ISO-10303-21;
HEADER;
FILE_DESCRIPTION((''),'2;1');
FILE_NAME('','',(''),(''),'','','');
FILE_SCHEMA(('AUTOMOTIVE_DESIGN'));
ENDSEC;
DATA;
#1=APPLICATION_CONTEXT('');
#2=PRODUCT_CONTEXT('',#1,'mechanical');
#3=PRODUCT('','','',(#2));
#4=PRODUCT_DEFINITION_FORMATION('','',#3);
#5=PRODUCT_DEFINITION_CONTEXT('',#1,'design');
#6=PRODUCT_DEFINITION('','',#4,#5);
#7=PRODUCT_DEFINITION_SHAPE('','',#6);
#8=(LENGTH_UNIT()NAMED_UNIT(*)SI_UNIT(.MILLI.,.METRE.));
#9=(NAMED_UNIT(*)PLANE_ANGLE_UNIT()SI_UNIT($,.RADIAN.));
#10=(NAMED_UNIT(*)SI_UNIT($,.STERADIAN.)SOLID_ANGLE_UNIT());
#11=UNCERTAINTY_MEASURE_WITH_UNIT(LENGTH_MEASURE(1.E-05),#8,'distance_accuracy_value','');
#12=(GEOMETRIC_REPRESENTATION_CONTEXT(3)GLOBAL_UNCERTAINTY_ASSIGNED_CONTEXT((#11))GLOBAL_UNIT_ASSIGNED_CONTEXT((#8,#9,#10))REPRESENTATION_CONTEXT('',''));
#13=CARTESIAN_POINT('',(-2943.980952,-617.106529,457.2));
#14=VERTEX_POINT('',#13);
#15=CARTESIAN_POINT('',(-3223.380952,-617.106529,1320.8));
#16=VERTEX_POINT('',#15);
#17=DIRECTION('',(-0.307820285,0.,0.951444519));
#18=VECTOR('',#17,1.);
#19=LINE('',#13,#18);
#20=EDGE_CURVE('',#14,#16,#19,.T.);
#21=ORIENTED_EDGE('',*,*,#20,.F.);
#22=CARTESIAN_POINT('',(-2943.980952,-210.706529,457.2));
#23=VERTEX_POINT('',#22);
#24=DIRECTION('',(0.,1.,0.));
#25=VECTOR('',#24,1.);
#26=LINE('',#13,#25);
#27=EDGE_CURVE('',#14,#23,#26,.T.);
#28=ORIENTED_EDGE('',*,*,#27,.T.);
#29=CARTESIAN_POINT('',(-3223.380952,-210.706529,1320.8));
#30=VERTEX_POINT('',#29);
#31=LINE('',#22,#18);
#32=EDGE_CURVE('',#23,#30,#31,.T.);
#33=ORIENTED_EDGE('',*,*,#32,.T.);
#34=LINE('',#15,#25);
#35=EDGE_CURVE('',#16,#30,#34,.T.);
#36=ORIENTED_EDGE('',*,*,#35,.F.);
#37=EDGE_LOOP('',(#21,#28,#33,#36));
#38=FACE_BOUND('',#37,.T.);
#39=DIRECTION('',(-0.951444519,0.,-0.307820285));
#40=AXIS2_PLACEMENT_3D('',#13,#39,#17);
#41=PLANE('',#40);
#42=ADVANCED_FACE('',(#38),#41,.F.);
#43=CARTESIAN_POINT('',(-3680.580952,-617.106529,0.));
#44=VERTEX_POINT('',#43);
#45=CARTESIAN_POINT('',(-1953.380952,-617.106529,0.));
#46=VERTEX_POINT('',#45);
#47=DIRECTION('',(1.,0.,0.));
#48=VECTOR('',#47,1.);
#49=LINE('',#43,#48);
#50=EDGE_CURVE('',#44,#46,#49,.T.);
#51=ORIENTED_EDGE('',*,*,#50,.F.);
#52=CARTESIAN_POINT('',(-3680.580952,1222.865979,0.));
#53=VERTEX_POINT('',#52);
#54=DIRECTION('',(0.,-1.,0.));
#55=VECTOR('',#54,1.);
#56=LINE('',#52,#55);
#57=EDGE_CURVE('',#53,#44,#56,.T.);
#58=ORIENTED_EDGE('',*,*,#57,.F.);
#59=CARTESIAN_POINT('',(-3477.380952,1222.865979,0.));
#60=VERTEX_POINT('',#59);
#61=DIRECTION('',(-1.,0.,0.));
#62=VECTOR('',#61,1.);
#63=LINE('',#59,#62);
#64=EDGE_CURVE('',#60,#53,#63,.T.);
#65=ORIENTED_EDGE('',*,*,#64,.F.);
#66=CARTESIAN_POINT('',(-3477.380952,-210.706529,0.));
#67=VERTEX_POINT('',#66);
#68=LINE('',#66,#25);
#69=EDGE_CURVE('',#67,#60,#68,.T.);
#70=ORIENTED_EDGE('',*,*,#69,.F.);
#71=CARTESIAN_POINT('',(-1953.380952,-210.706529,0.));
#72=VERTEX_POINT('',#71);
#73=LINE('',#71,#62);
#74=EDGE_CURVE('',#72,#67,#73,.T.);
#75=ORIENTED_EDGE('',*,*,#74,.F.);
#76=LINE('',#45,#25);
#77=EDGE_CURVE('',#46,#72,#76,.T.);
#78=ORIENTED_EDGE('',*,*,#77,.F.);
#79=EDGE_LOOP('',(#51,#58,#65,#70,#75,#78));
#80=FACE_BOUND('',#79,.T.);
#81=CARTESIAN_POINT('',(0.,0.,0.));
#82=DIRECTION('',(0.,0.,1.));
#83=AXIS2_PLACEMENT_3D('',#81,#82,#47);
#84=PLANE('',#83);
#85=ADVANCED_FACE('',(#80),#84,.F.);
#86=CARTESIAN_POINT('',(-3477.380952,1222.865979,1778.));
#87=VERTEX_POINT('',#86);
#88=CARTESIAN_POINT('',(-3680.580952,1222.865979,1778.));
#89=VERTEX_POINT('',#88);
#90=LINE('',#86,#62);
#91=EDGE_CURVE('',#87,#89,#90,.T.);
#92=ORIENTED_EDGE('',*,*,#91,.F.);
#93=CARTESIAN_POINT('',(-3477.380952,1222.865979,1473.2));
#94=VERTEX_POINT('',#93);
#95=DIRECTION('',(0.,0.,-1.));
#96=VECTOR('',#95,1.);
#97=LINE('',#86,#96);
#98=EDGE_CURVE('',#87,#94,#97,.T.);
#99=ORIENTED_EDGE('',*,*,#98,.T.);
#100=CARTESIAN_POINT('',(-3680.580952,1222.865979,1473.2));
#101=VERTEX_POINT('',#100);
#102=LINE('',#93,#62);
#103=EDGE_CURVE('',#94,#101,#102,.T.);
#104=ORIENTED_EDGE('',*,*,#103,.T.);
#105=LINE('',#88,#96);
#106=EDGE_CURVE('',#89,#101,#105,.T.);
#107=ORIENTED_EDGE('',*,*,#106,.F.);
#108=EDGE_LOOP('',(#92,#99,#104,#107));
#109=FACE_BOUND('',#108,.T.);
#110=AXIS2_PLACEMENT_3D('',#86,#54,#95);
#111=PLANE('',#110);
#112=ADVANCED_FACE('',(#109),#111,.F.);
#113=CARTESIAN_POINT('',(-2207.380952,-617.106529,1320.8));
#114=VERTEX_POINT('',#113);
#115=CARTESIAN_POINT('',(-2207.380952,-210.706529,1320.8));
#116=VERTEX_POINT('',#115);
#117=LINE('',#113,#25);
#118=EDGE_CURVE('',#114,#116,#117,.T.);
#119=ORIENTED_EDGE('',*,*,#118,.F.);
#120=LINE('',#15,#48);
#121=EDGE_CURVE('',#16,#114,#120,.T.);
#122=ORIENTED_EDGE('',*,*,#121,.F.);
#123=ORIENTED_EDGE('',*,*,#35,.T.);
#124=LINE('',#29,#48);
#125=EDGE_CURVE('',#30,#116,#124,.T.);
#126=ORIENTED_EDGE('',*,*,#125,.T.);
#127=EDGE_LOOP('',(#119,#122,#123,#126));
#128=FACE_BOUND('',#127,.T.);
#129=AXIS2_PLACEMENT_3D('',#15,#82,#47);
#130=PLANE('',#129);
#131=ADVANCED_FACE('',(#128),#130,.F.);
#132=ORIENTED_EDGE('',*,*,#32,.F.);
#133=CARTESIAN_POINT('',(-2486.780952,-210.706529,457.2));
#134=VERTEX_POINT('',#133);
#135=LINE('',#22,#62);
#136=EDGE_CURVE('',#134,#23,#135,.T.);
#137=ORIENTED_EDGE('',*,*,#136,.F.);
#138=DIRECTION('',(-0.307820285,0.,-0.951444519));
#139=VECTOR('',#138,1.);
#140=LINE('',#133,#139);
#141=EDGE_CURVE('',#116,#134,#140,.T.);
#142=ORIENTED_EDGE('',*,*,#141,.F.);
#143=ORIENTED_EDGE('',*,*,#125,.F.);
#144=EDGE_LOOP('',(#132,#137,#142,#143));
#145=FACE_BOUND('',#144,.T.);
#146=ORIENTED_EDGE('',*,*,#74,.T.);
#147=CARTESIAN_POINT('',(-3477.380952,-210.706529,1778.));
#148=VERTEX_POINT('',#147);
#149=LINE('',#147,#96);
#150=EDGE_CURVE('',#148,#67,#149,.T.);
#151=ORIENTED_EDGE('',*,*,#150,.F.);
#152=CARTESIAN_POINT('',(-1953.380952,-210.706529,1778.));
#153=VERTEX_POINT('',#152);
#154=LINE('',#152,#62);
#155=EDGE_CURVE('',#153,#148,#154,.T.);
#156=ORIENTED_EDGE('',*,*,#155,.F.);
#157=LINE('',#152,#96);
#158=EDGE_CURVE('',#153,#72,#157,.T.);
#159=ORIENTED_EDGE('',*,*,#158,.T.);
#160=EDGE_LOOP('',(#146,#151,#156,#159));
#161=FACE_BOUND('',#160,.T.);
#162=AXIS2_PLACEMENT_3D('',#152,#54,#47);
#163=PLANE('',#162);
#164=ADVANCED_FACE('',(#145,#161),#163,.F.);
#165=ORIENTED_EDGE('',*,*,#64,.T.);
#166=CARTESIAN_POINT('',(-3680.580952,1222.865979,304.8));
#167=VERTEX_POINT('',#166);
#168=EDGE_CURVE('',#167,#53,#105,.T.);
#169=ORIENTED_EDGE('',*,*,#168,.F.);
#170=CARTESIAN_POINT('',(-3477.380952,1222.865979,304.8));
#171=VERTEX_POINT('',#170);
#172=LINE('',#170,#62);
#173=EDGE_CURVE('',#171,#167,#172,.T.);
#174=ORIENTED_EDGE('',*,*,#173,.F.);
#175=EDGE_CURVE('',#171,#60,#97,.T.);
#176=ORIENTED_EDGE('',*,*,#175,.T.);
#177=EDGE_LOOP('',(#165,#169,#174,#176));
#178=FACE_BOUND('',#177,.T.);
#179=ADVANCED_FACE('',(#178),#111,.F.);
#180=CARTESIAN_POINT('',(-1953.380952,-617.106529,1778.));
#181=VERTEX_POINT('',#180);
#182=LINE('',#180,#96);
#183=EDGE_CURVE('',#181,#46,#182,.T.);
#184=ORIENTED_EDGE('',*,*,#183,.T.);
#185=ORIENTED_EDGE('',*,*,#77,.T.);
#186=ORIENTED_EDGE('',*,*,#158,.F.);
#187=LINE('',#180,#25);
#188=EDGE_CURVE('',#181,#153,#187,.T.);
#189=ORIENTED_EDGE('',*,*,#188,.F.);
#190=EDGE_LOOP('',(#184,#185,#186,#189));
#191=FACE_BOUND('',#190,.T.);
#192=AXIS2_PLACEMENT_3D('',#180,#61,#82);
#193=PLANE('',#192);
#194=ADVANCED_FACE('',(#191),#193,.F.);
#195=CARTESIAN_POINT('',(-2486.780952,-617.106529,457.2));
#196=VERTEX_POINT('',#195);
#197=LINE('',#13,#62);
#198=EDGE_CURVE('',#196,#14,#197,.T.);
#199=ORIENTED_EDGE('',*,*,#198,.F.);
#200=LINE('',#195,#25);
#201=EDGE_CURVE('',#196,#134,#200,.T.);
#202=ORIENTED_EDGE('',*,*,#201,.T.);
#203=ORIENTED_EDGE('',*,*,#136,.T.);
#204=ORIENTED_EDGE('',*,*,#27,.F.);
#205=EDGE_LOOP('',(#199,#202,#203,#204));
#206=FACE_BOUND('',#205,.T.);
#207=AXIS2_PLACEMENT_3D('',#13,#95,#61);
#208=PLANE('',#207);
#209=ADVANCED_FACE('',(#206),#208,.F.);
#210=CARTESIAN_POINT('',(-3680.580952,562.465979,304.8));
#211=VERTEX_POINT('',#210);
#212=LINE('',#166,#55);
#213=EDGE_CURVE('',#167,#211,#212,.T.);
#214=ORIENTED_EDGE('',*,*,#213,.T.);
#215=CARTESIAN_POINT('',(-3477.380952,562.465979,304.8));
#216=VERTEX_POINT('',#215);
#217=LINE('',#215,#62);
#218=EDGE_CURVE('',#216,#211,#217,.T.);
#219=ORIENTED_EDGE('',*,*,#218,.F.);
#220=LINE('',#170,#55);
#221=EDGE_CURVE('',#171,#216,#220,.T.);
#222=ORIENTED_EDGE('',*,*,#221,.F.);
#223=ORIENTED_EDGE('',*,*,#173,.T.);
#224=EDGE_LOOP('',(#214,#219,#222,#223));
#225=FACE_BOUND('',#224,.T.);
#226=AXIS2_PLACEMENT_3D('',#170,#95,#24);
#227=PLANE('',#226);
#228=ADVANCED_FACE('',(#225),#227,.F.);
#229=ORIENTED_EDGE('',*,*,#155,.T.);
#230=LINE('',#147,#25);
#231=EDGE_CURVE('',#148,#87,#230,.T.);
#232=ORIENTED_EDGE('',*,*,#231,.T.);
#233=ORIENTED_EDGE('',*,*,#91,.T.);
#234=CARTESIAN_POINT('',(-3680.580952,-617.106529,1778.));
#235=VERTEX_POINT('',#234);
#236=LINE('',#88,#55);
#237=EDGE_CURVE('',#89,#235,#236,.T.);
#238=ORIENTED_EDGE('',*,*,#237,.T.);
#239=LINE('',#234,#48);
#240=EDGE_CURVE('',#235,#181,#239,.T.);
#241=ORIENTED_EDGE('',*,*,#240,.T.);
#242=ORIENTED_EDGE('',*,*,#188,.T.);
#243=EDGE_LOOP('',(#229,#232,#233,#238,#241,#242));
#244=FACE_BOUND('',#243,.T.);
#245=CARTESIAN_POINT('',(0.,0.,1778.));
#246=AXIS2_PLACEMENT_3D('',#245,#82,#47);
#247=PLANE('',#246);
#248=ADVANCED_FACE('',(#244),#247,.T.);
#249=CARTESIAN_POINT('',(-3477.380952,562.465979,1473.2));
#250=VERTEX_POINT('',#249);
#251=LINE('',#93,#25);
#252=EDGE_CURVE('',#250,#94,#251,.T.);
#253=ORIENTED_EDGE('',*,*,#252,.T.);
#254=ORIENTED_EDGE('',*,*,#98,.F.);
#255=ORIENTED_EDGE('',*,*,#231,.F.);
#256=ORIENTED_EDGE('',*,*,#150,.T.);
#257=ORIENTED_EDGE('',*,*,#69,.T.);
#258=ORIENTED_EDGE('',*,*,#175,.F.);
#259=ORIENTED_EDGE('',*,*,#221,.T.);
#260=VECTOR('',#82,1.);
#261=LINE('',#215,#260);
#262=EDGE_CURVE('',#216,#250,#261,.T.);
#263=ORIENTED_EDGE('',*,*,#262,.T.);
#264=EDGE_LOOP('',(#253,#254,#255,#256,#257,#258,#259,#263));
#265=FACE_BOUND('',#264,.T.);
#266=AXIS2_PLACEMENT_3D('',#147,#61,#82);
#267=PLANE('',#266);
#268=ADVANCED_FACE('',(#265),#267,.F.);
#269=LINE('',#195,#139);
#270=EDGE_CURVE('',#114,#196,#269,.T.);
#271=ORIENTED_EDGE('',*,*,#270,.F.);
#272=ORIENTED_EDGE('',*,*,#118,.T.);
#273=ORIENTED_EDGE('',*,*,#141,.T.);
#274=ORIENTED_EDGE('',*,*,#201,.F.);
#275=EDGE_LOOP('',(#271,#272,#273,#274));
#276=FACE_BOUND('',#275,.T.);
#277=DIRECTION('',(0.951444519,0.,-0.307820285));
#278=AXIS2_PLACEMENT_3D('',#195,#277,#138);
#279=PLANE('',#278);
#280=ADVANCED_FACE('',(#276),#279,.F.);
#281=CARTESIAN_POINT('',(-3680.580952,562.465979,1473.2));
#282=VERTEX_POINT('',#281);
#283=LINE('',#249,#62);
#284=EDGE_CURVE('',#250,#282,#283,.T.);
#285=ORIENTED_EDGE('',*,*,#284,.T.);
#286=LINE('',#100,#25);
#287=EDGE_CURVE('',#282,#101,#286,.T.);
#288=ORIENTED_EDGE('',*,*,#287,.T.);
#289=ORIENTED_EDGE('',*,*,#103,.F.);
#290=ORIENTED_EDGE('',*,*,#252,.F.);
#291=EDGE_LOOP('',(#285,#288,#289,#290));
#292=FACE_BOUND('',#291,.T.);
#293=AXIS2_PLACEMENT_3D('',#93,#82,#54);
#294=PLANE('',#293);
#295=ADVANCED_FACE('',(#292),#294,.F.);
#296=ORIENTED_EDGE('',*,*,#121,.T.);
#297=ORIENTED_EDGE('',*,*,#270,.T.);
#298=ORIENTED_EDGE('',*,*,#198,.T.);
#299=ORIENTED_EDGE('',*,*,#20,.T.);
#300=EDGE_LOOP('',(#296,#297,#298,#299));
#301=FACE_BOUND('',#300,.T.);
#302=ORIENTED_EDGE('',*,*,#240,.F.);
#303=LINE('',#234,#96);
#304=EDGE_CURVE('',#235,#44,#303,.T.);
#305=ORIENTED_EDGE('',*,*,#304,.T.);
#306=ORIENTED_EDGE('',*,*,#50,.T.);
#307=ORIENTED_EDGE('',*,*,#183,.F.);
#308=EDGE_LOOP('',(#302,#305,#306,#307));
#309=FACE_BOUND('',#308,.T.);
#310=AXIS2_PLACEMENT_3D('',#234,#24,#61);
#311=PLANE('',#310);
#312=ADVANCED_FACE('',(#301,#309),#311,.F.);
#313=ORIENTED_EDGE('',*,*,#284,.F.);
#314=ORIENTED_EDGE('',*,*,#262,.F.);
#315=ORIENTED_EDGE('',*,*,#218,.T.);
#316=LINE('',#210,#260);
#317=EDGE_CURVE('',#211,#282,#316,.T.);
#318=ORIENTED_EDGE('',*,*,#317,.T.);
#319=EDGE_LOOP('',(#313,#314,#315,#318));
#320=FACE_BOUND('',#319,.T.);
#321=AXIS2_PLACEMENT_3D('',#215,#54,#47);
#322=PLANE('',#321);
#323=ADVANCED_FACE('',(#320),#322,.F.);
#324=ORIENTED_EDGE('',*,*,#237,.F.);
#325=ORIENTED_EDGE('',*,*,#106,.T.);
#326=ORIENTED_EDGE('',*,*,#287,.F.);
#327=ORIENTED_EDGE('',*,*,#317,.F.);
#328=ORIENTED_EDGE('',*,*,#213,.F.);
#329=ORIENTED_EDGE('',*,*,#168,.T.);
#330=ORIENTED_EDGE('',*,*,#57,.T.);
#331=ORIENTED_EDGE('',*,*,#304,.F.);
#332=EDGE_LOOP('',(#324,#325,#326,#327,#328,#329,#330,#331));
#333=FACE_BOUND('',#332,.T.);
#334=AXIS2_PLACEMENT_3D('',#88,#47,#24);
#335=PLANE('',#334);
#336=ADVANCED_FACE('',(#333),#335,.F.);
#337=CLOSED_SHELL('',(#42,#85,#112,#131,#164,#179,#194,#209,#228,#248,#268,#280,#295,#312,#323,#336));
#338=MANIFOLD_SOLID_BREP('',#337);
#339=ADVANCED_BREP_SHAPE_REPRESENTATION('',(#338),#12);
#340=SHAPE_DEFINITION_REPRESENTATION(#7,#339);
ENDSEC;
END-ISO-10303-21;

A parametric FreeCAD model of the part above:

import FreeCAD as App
import Part
import Sketcher
from FreeCAD import Vector
Q = App.Units.Quantity

doc = App.newDocument("Part")
body = doc.addObject("PartDesign::Body", "Body")

# Sketch on XY plane
sketch1 = body.newObject("Sketcher::SketchObject", "Sketch")
sketch1.AttachmentSupport = (doc.getObject("XY_Plane"), [""])
sketch1.MapMode = "FlatFace"
sketch1.addGeometry(Part.LineSegment(Vector(-3680.580952, 1222.865979, 0), Vector(-3680.580952, -617.106529, 0)), False)
sketch1.addGeometry(Part.LineSegment(Vector(-3680.580952, -617.106529, 0), Vector(-1953.380952, -617.106529, 0)), False)
sketch1.addGeometry(Part.LineSegment(Vector(-1953.380952, -617.106529, 0), Vector(-1953.380952, -210.706529, 0)), False)
sketch1.addGeometry(Part.LineSegment(Vector(-1953.380952, -210.706529, 0), Vector(-3477.380952, -210.706529, 0)), False)
sketch1.addGeometry(Part.LineSegment(Vector(-3477.380952, -210.706529, 0), Vector(-3477.380952, 1222.865979, 0)), False)
sketch1.addGeometry(Part.LineSegment(Vector(-3477.380952, 1222.865979, 0), Vector(-3680.580952, 1222.865979, 0)), False)
sketch1.addConstraint(Sketcher.Constraint("Coincident", 0, 2, 1, 1))
sketch1.addConstraint(Sketcher.Constraint("Coincident", 1, 2, 2, 1))
sketch1.addConstraint(Sketcher.Constraint("Coincident", 2, 2, 3, 1))
sketch1.addConstraint(Sketcher.Constraint("Coincident", 3, 2, 4, 1))
sketch1.addConstraint(Sketcher.Constraint("Coincident", 4, 2, 5, 1))
sketch1.addConstraint(Sketcher.Constraint("Coincident", 5, 2, 0, 1))
sketch1.addConstraint(Sketcher.Constraint("Vertical", 0))
sketch1.addConstraint(Sketcher.Constraint("Horizontal", 1))
sketch1.addConstraint(Sketcher.Constraint("Vertical", 2))
sketch1.addConstraint(Sketcher.Constraint("Horizontal", 3))
sketch1.addConstraint(Sketcher.Constraint("Vertical", 4))
sketch1.addConstraint(Sketcher.Constraint("Horizontal", 5))
sketch1.addConstraint(Sketcher.Constraint("DistanceX", 1, 1, 1, 2, Q("68 in")))
sketch1.addConstraint(Sketcher.Constraint("DistanceX", 3, 2, 3, 1, Q("60 in")))
sketch1.addConstraint(Sketcher.Constraint("DistanceY", 2, 1, 2, 2, Q("16 in")))
sketch1.addConstraint(Sketcher.Constraint("DistanceY", 0, 2, 0, 1, 1839.972509))
sketch1.addConstraint(Sketcher.Constraint("DistanceY", 0, 2, -1, 1, 617.106529))
sketch1.addConstraint(Sketcher.Constraint("DistanceX", 0, 2, -1, 1, 3680.580952))
pad1 = body.newObject("PartDesign::Pad", "Pad")
pad1.Profile = sketch1
pad1.Length = Q("70 in")

# Sketch on YZ plane
sketch2 = body.newObject("Sketcher::SketchObject", "Sketch001")
sketch2.AttachmentSupport = (doc.getObject("YZ_Plane"), [""])
sketch2.MapMode = "FlatFace"
sketch2.AttachmentOffset = App.Placement(Vector(0, 0, -3680.580952), App.Rotation())
sketch2.addGeometry(Part.LineSegment(Vector(1222.865979, 304.8, 0), Vector(562.465979, 304.8, 0)), False)
sketch2.addGeometry(Part.LineSegment(Vector(562.465979, 304.8, 0), Vector(562.465979, 1473.2, 0)), False)
sketch2.addGeometry(Part.LineSegment(Vector(562.465979, 1473.2, 0), Vector(1222.865979, 1473.2, 0)), False)
sketch2.addGeometry(Part.LineSegment(Vector(1222.865979, 1473.2, 0), Vector(1222.865979, 304.8, 0)), False)
sketch2.addConstraint(Sketcher.Constraint("Coincident", 0, 2, 1, 1))
sketch2.addConstraint(Sketcher.Constraint("Coincident", 1, 2, 2, 1))
sketch2.addConstraint(Sketcher.Constraint("Coincident", 2, 2, 3, 1))
sketch2.addConstraint(Sketcher.Constraint("Coincident", 3, 2, 0, 1))
sketch2.addConstraint(Sketcher.Constraint("Horizontal", 0))
sketch2.addConstraint(Sketcher.Constraint("Vertical", 1))
sketch2.addConstraint(Sketcher.Constraint("Horizontal", 2))
sketch2.addConstraint(Sketcher.Constraint("Vertical", 3))
sketch2.addConstraint(Sketcher.Constraint("DistanceX", 0, 2, 0, 1, Q("26 in")))
sketch2.addConstraint(Sketcher.Constraint("DistanceY", 1, 1, 1, 2, Q("46 in")))
sketch2.addConstraint(Sketcher.Constraint("DistanceY", -1, 1, 0, 2, Q("12 in")))
sketch2.addConstraint(Sketcher.Constraint("DistanceX", -1, 1, 0, 2, 562.465979))
pocket1 = body.newObject("PartDesign::Pocket", "Pocket")
pocket1.Profile = sketch2
pocket1.Length = Q("8 in")
pocket1.Reversed = True

# Sketch on XZ plane
sketch3 = body.newObject("Sketcher::SketchObject", "Sketch002")
sketch3.AttachmentSupport = (doc.getObject("XZ_Plane"), [""])
sketch3.MapMode = "FlatFace"
sketch3.AttachmentOffset = App.Placement(Vector(0, 0, 210.706529), App.Rotation())
sketch3.addGeometry(Part.LineSegment(Vector(-2486.780952, 457.2, 0), Vector(-2943.980952, 457.2, 0)), False)
sketch3.addGeometry(Part.LineSegment(Vector(-2943.980952, 457.2, 0), Vector(-3223.380952, 1320.8, 0)), False)
sketch3.addGeometry(Part.LineSegment(Vector(-3223.380952, 1320.8, 0), Vector(-2207.380952, 1320.8, 0)), False)
sketch3.addGeometry(Part.LineSegment(Vector(-2207.380952, 1320.8, 0), Vector(-2486.780952, 457.2, 0)), False)
sketch3.addConstraint(Sketcher.Constraint("Coincident", 0, 2, 1, 1))
sketch3.addConstraint(Sketcher.Constraint("Coincident", 1, 2, 2, 1))
sketch3.addConstraint(Sketcher.Constraint("Coincident", 2, 2, 3, 1))
sketch3.addConstraint(Sketcher.Constraint("Coincident", 3, 2, 0, 1))
sketch3.addConstraint(Sketcher.Constraint("Horizontal", 0))
sketch3.addConstraint(Sketcher.Constraint("Horizontal", 2))
sketch3.addConstraint(Sketcher.Constraint("Equal", 1, 3))
sketch3.addConstraint(Sketcher.Constraint("DistanceX", 0, 2, 0, 1, Q("18 in")))
sketch3.addConstraint(Sketcher.Constraint("DistanceX", 2, 1, 2, 2, Q("40 in")))
sketch3.addConstraint(Sketcher.Constraint("DistanceY", -1, 1, 0, 2, Q("18 in")))
sketch3.addConstraint(Sketcher.Constraint("DistanceY", -1, 1, 1, 2, Q("52 in")))
sketch3.addConstraint(Sketcher.Constraint("DistanceX", 0, 2, -1, 1, 2943.980952))
pocket2 = body.newObject("PartDesign::Pocket", "Pocket001")
pocket2.Profile = sketch3
pocket2.Length = Q("16 in")
pocket2.Reversed = True

doc.recompute()
